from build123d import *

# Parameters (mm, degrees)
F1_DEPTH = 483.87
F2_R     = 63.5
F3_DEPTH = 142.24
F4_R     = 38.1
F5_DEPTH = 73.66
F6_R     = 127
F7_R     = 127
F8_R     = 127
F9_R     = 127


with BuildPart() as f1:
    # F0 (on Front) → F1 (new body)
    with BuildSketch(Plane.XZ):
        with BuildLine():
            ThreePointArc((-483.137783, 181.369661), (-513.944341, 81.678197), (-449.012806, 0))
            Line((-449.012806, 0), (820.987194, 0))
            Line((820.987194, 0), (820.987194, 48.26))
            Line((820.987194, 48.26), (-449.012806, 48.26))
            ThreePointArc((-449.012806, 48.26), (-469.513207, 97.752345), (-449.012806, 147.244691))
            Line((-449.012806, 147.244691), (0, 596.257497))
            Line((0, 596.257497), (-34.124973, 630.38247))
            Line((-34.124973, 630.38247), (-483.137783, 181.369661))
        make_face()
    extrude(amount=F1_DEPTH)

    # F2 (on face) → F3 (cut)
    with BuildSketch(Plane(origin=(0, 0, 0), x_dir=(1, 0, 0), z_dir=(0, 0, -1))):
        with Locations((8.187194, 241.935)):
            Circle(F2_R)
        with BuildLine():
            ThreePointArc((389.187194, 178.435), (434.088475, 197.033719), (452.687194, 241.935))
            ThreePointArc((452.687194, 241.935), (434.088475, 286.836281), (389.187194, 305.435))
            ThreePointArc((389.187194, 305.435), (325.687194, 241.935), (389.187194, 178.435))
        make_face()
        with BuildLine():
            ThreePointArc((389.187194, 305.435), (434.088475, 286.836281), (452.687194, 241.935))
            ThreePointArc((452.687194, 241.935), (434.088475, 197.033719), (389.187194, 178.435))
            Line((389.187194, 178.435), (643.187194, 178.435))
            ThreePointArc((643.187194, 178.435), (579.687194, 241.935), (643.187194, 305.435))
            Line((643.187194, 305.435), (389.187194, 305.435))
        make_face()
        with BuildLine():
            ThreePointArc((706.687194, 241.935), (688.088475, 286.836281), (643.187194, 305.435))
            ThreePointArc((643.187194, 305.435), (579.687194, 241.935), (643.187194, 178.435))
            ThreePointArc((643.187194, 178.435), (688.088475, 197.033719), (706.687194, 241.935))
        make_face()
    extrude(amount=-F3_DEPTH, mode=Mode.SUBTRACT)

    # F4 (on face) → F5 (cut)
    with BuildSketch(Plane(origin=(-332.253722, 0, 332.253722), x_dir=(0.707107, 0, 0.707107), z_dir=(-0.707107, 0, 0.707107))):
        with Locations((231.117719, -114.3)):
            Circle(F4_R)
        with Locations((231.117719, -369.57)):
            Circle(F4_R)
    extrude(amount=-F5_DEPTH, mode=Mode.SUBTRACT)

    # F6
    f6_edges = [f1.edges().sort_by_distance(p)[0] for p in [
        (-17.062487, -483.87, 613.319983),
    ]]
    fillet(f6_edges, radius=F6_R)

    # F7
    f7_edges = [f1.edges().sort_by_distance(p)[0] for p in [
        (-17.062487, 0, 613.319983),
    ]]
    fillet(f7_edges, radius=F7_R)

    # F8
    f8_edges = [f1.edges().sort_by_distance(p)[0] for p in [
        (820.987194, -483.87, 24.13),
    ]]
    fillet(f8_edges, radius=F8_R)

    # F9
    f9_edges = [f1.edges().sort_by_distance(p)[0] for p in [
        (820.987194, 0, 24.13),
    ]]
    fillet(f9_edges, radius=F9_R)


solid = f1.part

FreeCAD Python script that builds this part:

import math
import FreeCAD as App
import Part
import Sketcher
from FreeCAD import Vector
Q = App.Units.Quantity


def edges_at(feature, points):
    """Names of the edges that pass closest to the given points."""
    edges = feature.Shape.Edges
    near = lambda p: min(range(len(edges)), key=lambda i: edges[i].distToShape(Part.Vertex(*p))[0])
    return sorted({f"Edge{near(p) + 1}" for p in points})

doc = App.newDocument("Part")
body = doc.addObject("PartDesign::Body", "Body")

# Sketch on XZ plane
sketch1 = body.newObject("Sketcher::SketchObject", "Sketch")
sketch1.AttachmentSupport = (doc.getObject("XZ_Plane"), [""])
sketch1.MapMode = "FlatFace"
sketch1.addGeometry([
    Part.ArcOfCircle(Part.Circle(Vector(-404, 102, 0), Vector(0, 0, 1), 112), math.radians(135), math.radians(246)),  # 0
    Part.LineSegment(Vector(-449, 0, 0), Vector(821, 0, 0)),  # 1
    Part.LineSegment(Vector(821, 0, 0), Vector(821, 48, 0)),  # 2
    Part.LineSegment(Vector(821, 48, 0), Vector(-449, 48, 0)),  # 3
    Part.ArcOfCircle(Part.Circle(Vector(-400, 98, 0), Vector(0, 0, 1), 70), math.radians(135), math.radians(225)),  # 4
    Part.LineSegment(Vector(-449, 147, 0), Vector(0, 596, 0)),  # 5
    Part.LineSegment(Vector(0, 596, 0), Vector(-34, 630, 0)),  # 6
    Part.LineSegment(Vector(-34, 630, 0), Vector(-483, 181, 0)),  # 7
], False)
sketch1.addConstraint([
    Sketcher.Constraint("Coincident", 0, 2, 1, 1),
    Sketcher.Constraint("Coincident", 1, 2, 2, 1),
    Sketcher.Constraint("Coincident", 2, 2, 3, 1),
    Sketcher.Constraint("Coincident", 3, 2, 4, 2),
    Sketcher.Constraint("Tangent", 4, 1, 5, 1),
    Sketcher.Constraint("Coincident", 5, 2, 6, 1),
    Sketcher.Constraint("Coincident", 6, 2, 7, 1),
    Sketcher.Constraint("Tangent", 7, 2, 0, 1),
    Sketcher.Constraint("Horizontal", 1),
    Sketcher.Constraint("Vertical", 2),
    Sketcher.Constraint("Horizontal", 3),
    Sketcher.Constraint("PointOnObject", 0, 2, -1),
    Sketcher.Constraint("PointOnObject", 5, 2, -2),
    Sketcher.Constraint("Perpendicular", 5, 6),
    Sketcher.Constraint("Perpendicular", 6, 7),
    Sketcher.Constraint("Vertical", 0, 2, 3, 2),
    Sketcher.Constraint("Vertical", 3, 2, 4, 1),
    Sketcher.Constraint("Radius", 0, Q("4.4 in")),
    Sketcher.Constraint("DistanceX", 1, 1, 1, 2, Q("50 in")),
    Sketcher.Constraint("Distance", 5, Q("25 in")),
    Sketcher.Constraint("Distance", 7, Q("25.0000002 in")),
    Sketcher.Constraint("DistanceY", 2, 1, 2, 2, Q("1.9 in")),
    Sketcher.Constraint("Angle", 5, Q("45 deg")),
    Sketcher.Constraint("Distance", 6, Q("1.9 in")),
])
pad1 = body.newObject("PartDesign::Pad", "Pad")
pad1.Profile = sketch1
pad1.Length = Q("19.05 in")

# Sketch on XY plane
sketch2 = body.newObject("Sketcher::SketchObject", "Sketch001")
sketch2.AttachmentSupport = (doc.getObject("XY_Plane"), [""])
sketch2.MapMode = "FlatFace"
sketch2.addGeometry([
    Part.Circle(Vector(8, -242, 0), Vector(0, 0, 1), 64),  # 0
    Part.ArcOfCircle(Part.Circle(Vector(389, -242, 0), Vector(0, 0, 1), 64), math.radians(90), math.radians(270)),  # 1
    Part.LineSegment(Vector(389, -178, 0), Vector(643, -178, 0)),  # 2
    Part.ArcOfCircle(Part.Circle(Vector(643, -242, 0), Vector(0, 0, 1), 63), math.radians(0), math.radians(90)),  # 3
    Part.ArcOfCircle(Part.Circle(Vector(643, -242, 0), Vector(0, 0, 1), 63), math.radians(-90), math.radians(0)),  # 4
    Part.LineSegment(Vector(643, -305, 0), Vector(389, -305, 0)),  # 5
], False)
sketch2.addConstraint([
    Sketcher.Constraint("Tangent", 1, 1, 2, 1),
    Sketcher.Constraint("Tangent", 2, 2, 3, 2),
    Sketcher.Constraint("Tangent", 3, 1, 4, 2),
    Sketcher.Constraint("Tangent", 4, 1, 5, 1),
    Sketcher.Constraint("Tangent", 5, 2, 1, 2),
    Sketcher.Constraint("Horizontal", 2),
    Sketcher.Constraint("Horizontal", 5),
    Sketcher.Constraint("Equal", 0, 1),
    Sketcher.Constraint("Equal", 1, 3),
    Sketcher.Constraint("Horizontal", 0, 3, 1, 3),
    Sketcher.Constraint("Horizontal", 4, 3, 3, 1),
    Sketcher.Constraint("Diameter", 0, Q("5 in")),
    Sketcher.Constraint("DistanceX", 2, 1, 2, 2, Q("10 in")),
    Sketcher.Constraint("DistanceX", 0, 3, 1, 3, Q("15 in")),
    Sketcher.Constraint("DistanceY", 0, 3, -1, 1, Q("9.525 in")),
    Sketcher.Constraint("DistanceX", -1, 1, 0, 3, 8.187194),
])
pocket1 = body.newObject("PartDesign::Pocket", "Pocket")
pocket1.Profile = sketch2
pocket1.Length = Q("5.6 in")
pocket1.Reversed = True

# Sketch on an angled plane
sketch3 = body.newObject("Sketcher::SketchObject", "Sketch002")
sketch3.Placement = App.Placement(Vector(-332.253722, 0, 332.253722), App.Rotation(Vector(0.707106781, 0, 0.707106781), Vector(0, 0.999999999, 0), Vector(-0.707106781, 0, 0.707106781), "ZXY"))
sketch3.addGeometry([
    Part.Circle(Vector(231, -114, 0), Vector(0, 0, 1), 38),
    Part.Circle(Vector(231, -370, 0), Vector(0, 0, 1), 38),
], False)
sketch3.addConstraint([
    Sketcher.Constraint("Equal", 0, 1),
    Sketcher.Constraint("Vertical", 0, 3, 1, 3),
    Sketcher.Constraint("Diameter", 0, Q("3 in")),
    Sketcher.Constraint("DistanceY", 0, 3, -1, 1, Q("4.5 in")),
    Sketcher.Constraint("DistanceY", 1, 3, -1, 1, Q("14.55 in")),
    Sketcher.Constraint("DistanceX", -1, 1, 0, 3, 231.117719),
])
pocket2 = body.newObject("PartDesign::Pocket", "Pocket001")
pocket2.Profile = sketch3
pocket2.Length = Q("2.9 in")
doc.recompute()

fillet = body.newObject("PartDesign::Fillet", "Fillet")
fillet.Base = (pocket2, edges_at(pocket2, [(-17.062, -483.87, 613.32)]))
fillet.Radius = Q("5 in")
doc.recompute()

fillet2 = body.newObject("PartDesign::Fillet", "Fillet001")
fillet2.Base = (fillet, edges_at(fillet, [(-17.062, 0, 613.32)]))
fillet2.Radius = Q("5 in")
doc.recompute()

fillet3 = body.newObject("PartDesign::Fillet", "Fillet002")
fillet3.Base = (fillet2, edges_at(fillet2, [(820.987, -483.87, 24.13)]))
fillet3.Radius = Q("5 in")
doc.recompute()

fillet4 = body.newObject("PartDesign::Fillet", "Fillet003")
fillet4.Base = (fillet3, edges_at(fillet3, [(820.987, 0, 24.13)]))
fillet4.Radius = Q("5 in")

doc.recompute()
